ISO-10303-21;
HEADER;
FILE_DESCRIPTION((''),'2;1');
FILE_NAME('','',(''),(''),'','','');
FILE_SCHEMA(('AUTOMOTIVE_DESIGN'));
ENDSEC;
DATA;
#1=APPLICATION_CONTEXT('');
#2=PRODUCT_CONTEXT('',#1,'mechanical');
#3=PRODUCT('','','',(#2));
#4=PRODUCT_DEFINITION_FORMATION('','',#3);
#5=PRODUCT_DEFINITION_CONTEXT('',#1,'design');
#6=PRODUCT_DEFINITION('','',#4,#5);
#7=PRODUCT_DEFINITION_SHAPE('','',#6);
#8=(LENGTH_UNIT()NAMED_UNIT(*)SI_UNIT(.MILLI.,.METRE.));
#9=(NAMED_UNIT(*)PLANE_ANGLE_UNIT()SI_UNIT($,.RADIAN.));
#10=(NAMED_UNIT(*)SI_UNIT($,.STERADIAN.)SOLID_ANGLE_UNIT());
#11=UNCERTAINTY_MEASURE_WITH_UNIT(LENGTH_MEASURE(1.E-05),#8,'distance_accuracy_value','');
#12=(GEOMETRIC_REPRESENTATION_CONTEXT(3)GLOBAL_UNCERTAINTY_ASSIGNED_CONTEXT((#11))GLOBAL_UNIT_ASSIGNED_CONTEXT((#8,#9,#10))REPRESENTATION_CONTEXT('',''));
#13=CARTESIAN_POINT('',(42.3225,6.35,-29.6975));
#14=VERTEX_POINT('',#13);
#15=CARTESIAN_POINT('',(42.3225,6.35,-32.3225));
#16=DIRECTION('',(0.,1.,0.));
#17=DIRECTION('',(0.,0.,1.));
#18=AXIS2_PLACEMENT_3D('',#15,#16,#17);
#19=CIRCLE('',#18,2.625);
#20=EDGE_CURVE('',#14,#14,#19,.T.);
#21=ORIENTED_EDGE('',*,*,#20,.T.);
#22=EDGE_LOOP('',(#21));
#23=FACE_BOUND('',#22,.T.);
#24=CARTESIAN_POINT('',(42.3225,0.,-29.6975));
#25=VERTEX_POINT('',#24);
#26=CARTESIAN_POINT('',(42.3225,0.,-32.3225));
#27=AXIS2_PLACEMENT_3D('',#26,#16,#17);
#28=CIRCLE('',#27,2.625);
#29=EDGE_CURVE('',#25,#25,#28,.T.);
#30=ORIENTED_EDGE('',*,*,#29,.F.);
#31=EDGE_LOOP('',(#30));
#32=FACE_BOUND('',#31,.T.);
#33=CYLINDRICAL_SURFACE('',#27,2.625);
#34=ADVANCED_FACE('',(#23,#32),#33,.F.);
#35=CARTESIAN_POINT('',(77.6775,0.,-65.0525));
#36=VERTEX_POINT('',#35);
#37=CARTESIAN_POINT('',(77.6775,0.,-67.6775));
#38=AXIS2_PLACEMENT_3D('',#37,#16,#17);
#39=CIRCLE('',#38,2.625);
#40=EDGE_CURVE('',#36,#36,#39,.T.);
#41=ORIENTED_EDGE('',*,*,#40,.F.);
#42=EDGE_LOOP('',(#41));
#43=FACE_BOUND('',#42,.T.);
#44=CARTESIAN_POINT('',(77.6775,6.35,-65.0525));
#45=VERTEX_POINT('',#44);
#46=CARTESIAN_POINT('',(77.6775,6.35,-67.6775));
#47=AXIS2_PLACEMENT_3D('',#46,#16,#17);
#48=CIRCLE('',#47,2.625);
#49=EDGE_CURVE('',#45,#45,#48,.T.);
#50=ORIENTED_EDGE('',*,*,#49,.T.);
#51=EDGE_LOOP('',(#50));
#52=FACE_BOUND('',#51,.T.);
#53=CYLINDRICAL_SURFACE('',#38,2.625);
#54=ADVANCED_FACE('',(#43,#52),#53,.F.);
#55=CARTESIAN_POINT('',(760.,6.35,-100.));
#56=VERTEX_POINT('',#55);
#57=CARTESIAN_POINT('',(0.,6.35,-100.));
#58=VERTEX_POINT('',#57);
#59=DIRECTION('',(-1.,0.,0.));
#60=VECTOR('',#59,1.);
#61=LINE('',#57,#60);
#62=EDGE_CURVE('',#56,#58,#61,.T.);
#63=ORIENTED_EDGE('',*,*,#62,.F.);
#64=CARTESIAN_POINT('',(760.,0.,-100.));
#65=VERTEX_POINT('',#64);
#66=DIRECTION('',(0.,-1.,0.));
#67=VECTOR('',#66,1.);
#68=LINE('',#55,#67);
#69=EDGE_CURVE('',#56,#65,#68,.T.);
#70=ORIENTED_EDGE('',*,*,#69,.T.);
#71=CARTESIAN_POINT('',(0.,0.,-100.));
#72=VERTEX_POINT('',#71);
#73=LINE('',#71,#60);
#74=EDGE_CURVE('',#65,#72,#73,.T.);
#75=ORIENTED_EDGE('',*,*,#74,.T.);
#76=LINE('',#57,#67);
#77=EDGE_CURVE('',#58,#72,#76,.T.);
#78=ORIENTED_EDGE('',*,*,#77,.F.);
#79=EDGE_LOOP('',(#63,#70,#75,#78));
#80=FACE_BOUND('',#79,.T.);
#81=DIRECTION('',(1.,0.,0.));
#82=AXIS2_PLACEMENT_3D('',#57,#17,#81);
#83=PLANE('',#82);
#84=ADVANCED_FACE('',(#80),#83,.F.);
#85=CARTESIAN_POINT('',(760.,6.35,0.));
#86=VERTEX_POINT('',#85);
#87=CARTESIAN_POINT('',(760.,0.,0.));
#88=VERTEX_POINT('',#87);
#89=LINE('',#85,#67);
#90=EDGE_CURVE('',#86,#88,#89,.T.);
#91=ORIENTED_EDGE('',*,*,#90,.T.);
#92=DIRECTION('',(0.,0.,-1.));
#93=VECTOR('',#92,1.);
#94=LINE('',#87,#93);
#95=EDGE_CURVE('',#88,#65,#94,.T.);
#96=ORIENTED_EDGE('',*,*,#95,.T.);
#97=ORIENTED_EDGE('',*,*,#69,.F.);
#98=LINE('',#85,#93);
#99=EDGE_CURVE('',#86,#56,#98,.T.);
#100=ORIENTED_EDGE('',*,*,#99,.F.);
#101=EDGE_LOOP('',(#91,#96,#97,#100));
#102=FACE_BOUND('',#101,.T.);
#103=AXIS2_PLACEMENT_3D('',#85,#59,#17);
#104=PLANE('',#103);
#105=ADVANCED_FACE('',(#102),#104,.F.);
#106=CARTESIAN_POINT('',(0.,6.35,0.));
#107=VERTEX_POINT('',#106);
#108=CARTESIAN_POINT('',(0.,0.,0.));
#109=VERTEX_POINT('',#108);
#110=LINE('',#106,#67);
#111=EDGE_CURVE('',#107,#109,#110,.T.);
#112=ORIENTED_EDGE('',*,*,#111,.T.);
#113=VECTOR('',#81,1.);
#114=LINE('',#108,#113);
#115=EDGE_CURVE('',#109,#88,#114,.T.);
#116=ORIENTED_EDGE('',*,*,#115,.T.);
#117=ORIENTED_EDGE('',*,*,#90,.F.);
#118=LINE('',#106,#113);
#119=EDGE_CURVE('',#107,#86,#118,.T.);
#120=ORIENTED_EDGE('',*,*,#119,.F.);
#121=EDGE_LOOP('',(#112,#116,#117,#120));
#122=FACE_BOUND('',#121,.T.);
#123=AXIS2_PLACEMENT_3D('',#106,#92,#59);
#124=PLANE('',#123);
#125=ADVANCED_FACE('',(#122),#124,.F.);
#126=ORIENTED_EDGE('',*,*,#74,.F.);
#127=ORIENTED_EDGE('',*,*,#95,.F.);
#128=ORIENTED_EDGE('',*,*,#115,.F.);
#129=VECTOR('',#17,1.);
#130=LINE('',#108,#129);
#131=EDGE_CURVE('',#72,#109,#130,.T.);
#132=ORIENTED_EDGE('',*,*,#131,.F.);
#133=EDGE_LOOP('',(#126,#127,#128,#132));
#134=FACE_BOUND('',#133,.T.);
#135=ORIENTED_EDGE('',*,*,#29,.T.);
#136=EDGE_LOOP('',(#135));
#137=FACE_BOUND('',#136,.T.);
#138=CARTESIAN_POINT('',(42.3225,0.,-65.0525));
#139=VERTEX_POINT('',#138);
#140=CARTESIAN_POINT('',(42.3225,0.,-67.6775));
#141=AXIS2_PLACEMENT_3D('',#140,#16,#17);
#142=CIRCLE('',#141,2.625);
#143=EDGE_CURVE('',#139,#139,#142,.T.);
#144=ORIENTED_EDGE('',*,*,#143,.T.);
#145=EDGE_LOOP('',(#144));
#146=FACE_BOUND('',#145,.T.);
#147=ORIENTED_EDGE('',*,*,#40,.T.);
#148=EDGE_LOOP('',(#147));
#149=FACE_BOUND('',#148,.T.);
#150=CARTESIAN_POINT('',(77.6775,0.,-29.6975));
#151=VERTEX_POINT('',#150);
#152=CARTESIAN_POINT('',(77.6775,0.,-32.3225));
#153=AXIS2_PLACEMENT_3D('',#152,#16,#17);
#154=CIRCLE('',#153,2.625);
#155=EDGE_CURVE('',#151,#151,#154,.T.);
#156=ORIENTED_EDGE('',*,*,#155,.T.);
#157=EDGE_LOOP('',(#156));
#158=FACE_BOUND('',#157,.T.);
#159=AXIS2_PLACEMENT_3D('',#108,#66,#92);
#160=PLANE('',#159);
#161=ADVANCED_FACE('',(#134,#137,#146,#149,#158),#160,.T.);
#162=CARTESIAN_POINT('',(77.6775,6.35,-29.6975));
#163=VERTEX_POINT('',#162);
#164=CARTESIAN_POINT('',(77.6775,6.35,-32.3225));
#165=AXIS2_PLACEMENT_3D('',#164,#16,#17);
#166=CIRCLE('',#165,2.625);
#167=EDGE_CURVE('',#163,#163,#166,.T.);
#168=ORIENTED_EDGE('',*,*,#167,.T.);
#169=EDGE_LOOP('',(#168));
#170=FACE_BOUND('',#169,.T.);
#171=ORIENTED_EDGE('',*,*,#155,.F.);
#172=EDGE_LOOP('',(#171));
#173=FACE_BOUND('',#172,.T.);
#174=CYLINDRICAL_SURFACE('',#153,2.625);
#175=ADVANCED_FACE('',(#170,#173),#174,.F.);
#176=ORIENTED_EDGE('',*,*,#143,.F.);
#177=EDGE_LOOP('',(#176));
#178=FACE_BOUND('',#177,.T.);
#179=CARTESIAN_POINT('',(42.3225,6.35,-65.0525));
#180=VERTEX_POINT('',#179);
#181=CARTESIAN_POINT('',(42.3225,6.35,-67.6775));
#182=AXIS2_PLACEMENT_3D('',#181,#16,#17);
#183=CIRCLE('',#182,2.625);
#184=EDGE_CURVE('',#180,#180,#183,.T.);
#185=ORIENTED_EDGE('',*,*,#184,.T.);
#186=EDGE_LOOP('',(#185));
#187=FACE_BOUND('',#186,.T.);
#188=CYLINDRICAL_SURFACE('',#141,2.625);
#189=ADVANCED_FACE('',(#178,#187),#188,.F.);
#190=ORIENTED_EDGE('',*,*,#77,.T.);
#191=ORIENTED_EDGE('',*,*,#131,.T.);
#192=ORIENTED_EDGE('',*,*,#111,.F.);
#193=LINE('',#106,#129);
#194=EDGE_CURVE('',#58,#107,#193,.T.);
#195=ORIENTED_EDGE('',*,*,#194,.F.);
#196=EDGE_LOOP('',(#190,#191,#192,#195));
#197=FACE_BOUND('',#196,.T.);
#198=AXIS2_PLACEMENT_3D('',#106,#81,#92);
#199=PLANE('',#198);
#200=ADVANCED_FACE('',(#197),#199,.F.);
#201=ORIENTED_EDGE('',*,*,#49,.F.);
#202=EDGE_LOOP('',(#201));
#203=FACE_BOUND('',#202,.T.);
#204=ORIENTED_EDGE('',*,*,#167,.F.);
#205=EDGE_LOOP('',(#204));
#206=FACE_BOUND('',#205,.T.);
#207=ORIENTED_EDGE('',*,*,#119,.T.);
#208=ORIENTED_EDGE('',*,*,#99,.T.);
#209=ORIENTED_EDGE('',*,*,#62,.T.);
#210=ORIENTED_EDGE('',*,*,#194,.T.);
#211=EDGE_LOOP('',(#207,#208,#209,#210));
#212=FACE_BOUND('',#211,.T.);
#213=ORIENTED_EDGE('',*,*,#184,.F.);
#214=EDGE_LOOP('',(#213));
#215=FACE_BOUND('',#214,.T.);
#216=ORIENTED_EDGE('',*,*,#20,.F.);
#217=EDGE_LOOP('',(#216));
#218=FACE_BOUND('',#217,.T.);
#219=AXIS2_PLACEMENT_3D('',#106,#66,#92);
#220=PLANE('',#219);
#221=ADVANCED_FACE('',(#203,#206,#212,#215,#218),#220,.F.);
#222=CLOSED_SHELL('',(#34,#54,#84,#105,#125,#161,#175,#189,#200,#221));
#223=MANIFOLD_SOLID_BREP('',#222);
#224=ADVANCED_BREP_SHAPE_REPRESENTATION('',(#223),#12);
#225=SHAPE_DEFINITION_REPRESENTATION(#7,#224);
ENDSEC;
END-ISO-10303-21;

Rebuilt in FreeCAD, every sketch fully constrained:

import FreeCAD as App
import Part
import Sketcher

doc = App.newDocument("Part")
body = doc.addObject("PartDesign::Body", "Body")

# Sketch on XZ plane
sketch1 = body.newObject("Sketcher::SketchObject", "Sketch")
sketch1.AttachmentSupport = (doc.getObject("XZ_Plane"), [""])
sketch1.MapMode = "FlatFace"
sketch1.addGeometry([
    Part.LineSegment(App.Vector(0, -100, 0), App.Vector(0, 0, 0)),
    Part.LineSegment(App.Vector(0, 0, 0), App.Vector(760, 0, 0)),
    Part.LineSegment(App.Vector(760, 0, 0), App.Vector(760, -100, 0)),
    Part.LineSegment(App.Vector(760, -100, 0), App.Vector(0, -100, 0)),
], False)
sketch1.addConstraint([
    Sketcher.Constraint("Coincident", 0, 2, 1, 1),
    Sketcher.Constraint("Coincident", 1, 2, 2, 1),
    Sketcher.Constraint("Coincident", 2, 2, 3, 1),
    Sketcher.Constraint("Coincident", 3, 2, 0, 1),
    Sketcher.Constraint("Vertical", 0),
    Sketcher.Constraint("Horizontal", 1),
    Sketcher.Constraint("Vertical", 2),
    Sketcher.Constraint("Horizontal", 3),
    Sketcher.Constraint("Coincident", 0, 2, -1, 1),
    Sketcher.Constraint("DistanceX", 1, 1, 1, 2, 760.0),
    Sketcher.Constraint("DistanceY", 0, 1, 0, 2, 100.0),
])
pad1 = body.newObject("PartDesign::Pad", "Pad")
pad1.Profile = sketch1
pad1.Length = 6.35
pad1.Reversed = True

# Sketch on XZ plane
sketch2 = body.newObject("Sketcher::SketchObject", "Sketch001")
sketch2.AttachmentSupport = (doc.getObject("XZ_Plane"), [""])
sketch2.MapMode = "FlatFace"
sketch2.AttachmentOffset = App.Placement(App.Vector(0, 0, -6.35), App.Rotation())
sketch2.addGeometry([
    Part.Circle(App.Vector(42.3225, -67.6775, 0), App.Vector(0, 0, 1), 2.625),
    Part.Circle(App.Vector(77.6775, -67.6775, 0), App.Vector(0, 0, 1), 2.625),
    Part.Circle(App.Vector(77.6775, -32.3225, 0), App.Vector(0, 0, 1), 2.625),
    Part.Circle(App.Vector(42.3225, -32.3225, 0), App.Vector(0, 0, 1), 2.625),
], False)
sketch2.addConstraint([
    Sketcher.Constraint("Equal", 0, 1),
    Sketcher.Constraint("Equal", 1, 2),
    Sketcher.Constraint("Equal", 2, 3),
    Sketcher.Constraint("Horizontal", 0, 3, 1, 3),
    Sketcher.Constraint("Horizontal", 2, 3, 3, 3),
    Sketcher.Constraint("Vertical", 1, 3, 2, 3),
    Sketcher.Constraint("Vertical", 0, 3, 3, 3),
    Sketcher.Constraint("Diameter", 0, 5.25),
    Sketcher.Constraint("DistanceX", 0, 3, 1, 3, 35.355),
    Sketcher.Constraint("DistanceY", 1, 3, 2, 3, 35.355),
    Sketcher.Constraint("DistanceX", -1, 1, 0, 3, 42.3225),
    Sketcher.Constraint("DistanceY", 0, 3, -1, 1, 67.6775),
])
pocket1 = body.newObject("PartDesign::Pocket", "Pocket")
pocket1.Profile = sketch2
pocket1.Type = "ThroughAll"
pocket1.Reversed = True

doc.recompute()
